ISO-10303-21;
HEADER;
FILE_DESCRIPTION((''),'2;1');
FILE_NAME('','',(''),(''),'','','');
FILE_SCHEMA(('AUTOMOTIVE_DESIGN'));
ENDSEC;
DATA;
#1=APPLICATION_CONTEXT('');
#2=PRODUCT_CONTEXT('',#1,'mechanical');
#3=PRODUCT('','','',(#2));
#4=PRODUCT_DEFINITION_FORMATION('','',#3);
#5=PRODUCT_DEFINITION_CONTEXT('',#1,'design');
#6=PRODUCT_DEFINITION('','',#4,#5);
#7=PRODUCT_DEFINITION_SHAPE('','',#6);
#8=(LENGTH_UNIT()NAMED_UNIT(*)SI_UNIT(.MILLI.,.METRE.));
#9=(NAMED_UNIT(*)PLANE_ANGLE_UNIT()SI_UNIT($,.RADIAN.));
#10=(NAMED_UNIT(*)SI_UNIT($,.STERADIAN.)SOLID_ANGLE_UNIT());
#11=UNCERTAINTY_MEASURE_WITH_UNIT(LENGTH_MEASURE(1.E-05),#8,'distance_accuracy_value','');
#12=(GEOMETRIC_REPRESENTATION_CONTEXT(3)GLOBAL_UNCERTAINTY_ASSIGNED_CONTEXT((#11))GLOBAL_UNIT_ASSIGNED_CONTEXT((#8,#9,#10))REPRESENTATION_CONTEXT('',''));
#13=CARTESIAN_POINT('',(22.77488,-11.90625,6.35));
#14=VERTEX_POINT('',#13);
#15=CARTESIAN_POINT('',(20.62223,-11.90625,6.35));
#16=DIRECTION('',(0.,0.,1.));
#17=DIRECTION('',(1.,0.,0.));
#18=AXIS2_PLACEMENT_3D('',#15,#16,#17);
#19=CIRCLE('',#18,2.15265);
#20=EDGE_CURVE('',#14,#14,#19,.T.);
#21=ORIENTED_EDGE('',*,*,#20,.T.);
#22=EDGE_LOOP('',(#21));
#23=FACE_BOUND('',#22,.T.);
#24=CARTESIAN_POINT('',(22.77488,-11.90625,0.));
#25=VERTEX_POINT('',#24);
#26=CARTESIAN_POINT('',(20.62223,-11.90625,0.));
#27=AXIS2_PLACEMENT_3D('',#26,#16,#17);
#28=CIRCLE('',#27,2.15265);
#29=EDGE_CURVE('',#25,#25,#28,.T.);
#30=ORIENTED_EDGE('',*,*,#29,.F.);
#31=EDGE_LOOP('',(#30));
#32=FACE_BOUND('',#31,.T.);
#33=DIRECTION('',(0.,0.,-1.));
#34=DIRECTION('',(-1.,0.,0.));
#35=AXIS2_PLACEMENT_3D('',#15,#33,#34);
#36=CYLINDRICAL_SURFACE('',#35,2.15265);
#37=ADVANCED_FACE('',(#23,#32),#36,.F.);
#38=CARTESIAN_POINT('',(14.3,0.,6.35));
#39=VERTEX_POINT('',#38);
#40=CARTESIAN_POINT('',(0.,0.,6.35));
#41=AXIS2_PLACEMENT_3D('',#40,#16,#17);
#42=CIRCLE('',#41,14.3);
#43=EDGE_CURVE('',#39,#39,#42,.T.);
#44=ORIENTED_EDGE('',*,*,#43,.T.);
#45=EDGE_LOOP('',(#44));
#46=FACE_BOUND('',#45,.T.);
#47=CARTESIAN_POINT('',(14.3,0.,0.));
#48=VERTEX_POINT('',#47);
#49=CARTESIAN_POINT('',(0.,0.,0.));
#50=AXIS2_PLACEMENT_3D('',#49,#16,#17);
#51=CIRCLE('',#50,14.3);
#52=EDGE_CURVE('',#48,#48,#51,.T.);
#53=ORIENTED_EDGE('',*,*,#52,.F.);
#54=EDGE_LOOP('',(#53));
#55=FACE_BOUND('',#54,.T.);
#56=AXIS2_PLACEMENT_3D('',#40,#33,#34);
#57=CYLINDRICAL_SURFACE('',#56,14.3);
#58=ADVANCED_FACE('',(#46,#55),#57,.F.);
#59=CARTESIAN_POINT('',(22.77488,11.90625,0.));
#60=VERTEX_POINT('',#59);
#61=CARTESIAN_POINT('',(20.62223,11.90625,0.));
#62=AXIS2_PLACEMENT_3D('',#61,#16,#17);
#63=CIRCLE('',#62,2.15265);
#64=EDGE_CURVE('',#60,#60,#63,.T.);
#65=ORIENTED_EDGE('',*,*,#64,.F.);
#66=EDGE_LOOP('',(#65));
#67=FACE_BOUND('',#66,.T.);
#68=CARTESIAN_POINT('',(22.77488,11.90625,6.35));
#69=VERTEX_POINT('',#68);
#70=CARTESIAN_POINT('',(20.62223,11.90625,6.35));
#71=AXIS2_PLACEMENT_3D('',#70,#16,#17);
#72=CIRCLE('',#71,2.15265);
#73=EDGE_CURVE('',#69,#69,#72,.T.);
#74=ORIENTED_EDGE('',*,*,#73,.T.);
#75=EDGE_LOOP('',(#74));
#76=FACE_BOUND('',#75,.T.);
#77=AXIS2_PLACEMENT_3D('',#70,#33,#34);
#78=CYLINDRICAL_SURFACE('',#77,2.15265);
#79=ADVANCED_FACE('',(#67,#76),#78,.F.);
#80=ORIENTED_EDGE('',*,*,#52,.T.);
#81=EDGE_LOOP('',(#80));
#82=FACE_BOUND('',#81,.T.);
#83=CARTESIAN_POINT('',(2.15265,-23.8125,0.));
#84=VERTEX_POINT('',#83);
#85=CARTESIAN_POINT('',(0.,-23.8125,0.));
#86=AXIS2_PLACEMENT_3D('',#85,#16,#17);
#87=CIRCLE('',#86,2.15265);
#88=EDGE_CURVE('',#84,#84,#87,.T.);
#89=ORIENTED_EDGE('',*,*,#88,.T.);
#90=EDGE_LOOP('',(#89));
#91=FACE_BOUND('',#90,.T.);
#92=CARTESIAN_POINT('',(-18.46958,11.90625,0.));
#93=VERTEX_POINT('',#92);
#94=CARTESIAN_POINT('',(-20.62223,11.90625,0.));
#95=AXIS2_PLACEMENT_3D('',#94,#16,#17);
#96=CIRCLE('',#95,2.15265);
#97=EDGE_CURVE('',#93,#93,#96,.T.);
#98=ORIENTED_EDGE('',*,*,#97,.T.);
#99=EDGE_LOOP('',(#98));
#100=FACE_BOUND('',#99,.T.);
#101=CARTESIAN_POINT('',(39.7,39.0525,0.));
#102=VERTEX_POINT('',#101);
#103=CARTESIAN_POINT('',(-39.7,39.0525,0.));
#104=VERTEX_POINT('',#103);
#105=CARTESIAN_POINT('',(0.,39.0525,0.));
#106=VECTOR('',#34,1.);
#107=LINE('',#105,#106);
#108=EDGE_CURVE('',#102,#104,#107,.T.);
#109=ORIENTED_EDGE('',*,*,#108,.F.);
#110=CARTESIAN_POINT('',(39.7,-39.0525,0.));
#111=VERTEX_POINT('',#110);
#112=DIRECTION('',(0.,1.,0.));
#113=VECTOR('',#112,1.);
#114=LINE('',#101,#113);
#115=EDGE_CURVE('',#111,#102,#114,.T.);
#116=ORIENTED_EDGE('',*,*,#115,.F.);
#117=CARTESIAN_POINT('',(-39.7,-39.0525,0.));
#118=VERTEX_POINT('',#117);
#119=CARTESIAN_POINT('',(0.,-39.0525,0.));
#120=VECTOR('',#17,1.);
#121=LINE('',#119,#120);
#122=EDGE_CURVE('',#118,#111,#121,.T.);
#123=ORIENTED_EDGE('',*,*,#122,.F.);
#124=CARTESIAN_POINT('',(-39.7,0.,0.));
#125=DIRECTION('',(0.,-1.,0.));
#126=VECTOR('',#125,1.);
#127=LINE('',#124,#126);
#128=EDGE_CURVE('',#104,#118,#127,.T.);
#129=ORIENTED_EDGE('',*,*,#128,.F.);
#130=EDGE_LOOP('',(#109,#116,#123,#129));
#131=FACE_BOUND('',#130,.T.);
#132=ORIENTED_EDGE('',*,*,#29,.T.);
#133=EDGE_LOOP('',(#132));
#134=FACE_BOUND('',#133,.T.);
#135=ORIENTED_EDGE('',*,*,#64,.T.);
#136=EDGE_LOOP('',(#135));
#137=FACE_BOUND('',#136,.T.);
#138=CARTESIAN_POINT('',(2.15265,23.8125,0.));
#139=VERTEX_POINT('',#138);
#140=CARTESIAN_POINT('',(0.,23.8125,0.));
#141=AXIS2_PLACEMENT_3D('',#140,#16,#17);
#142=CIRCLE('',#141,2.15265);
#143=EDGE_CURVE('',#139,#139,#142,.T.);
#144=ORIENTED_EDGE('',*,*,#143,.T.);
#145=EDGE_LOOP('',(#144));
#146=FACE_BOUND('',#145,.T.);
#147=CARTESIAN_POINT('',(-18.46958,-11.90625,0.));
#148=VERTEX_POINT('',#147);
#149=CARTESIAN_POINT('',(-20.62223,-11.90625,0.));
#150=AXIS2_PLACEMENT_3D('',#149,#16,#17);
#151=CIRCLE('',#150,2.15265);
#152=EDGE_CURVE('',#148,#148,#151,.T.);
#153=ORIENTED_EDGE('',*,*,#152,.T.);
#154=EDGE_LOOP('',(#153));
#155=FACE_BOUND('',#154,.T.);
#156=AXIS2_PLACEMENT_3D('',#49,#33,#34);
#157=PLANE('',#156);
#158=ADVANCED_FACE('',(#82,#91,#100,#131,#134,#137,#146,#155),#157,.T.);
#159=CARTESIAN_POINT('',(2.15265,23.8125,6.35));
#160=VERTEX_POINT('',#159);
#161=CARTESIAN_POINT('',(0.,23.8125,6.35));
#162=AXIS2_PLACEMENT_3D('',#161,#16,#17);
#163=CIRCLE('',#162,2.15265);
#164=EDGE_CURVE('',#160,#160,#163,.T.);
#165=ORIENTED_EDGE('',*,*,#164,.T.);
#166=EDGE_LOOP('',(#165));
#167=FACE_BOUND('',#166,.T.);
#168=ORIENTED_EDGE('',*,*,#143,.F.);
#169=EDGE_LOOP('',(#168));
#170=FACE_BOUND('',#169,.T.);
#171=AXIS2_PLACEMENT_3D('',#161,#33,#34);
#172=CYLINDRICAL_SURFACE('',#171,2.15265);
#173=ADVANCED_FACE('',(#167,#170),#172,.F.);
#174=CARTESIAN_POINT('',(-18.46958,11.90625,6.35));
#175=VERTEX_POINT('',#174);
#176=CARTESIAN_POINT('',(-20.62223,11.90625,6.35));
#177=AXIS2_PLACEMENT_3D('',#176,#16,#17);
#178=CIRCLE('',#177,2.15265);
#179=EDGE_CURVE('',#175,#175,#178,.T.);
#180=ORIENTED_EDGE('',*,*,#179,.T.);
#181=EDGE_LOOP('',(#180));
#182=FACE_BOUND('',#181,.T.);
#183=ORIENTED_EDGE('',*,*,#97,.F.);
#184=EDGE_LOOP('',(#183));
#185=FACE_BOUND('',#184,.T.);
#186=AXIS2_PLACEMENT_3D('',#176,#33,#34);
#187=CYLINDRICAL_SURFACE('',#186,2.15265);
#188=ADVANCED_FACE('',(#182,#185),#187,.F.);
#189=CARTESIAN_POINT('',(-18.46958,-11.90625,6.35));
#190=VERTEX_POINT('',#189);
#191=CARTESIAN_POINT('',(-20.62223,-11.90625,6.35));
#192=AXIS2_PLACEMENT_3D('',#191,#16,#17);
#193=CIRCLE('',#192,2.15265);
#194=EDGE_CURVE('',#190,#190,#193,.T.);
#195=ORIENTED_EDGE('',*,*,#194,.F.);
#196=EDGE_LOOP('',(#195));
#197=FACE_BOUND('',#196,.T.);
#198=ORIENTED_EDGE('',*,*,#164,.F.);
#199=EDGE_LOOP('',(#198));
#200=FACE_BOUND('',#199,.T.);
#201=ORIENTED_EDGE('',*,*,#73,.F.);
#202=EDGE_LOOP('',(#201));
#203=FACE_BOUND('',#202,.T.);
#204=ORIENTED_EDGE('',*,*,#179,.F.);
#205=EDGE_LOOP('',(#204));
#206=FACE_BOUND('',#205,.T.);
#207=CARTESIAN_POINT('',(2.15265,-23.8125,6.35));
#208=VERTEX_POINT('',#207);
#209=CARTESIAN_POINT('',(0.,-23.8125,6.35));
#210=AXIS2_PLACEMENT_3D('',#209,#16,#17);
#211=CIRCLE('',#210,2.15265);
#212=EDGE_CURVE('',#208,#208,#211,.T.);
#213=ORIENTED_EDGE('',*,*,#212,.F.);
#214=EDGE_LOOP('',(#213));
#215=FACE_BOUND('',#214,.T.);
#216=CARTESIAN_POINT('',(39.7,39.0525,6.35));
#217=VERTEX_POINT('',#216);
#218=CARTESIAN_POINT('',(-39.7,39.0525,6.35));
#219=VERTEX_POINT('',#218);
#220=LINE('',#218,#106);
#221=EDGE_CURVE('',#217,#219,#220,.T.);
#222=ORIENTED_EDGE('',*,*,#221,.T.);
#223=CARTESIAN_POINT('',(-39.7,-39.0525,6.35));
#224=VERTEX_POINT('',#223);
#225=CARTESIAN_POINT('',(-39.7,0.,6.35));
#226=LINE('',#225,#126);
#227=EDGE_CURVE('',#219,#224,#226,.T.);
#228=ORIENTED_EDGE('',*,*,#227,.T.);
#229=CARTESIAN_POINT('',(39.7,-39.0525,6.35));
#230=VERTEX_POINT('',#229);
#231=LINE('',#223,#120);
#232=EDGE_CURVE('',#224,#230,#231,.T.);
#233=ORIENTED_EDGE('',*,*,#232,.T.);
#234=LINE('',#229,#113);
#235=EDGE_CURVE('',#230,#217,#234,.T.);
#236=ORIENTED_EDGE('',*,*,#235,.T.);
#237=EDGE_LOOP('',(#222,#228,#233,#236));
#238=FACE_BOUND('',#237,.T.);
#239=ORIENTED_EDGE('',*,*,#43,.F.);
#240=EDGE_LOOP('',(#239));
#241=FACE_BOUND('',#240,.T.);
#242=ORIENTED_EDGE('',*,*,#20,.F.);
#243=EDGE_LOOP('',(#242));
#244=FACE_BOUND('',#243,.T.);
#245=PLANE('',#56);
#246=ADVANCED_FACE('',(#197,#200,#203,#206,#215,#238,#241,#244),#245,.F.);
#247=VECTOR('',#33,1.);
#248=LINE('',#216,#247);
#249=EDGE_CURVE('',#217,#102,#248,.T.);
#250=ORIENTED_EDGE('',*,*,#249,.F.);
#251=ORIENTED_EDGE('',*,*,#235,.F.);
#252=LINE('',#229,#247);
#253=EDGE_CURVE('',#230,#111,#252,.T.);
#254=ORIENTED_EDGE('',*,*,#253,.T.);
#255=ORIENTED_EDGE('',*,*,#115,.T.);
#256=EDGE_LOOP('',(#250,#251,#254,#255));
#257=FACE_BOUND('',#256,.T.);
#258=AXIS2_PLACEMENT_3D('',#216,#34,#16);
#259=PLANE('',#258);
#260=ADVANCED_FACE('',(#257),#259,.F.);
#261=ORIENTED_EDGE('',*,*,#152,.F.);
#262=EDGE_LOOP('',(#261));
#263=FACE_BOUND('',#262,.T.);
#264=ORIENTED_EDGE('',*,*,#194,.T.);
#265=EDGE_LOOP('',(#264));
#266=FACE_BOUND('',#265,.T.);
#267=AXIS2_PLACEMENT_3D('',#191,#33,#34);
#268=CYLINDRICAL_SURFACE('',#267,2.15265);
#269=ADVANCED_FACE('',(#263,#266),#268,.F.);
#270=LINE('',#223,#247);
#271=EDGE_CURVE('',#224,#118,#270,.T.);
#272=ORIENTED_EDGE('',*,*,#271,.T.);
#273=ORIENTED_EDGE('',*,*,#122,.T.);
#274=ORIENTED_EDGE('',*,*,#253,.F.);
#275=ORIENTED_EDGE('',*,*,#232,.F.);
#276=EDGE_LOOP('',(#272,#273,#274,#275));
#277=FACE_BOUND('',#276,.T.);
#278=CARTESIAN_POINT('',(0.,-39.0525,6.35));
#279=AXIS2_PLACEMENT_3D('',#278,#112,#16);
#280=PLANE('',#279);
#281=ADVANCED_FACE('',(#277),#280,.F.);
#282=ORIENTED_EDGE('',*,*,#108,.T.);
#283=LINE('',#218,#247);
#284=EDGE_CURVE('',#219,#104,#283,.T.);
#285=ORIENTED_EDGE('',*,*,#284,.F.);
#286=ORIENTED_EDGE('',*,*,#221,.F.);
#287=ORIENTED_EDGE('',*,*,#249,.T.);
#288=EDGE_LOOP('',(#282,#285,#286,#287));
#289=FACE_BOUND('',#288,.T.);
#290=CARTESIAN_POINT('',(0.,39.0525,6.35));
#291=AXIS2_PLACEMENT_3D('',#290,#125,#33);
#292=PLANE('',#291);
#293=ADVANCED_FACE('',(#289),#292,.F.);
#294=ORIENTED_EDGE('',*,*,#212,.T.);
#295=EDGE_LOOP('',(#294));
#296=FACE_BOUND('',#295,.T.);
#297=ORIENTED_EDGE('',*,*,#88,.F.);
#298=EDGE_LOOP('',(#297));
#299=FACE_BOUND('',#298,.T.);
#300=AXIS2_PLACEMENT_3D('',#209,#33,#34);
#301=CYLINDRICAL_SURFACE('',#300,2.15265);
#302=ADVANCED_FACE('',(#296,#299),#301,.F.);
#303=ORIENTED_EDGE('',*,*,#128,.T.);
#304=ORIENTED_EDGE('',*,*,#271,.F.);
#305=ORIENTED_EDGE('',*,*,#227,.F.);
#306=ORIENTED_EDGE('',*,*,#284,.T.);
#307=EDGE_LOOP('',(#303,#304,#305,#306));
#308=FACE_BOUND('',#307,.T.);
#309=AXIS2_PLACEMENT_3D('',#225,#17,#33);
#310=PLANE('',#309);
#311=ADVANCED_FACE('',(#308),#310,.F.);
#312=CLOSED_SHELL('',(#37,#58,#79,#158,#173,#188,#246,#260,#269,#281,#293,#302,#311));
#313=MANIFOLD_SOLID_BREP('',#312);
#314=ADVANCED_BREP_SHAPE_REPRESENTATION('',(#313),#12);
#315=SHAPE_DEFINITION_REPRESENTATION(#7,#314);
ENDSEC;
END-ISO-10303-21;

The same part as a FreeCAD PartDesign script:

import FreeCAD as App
import Part
import Sketcher
from FreeCAD import Vector

doc = App.newDocument("Part")
params = doc.addObject("Spreadsheet::Sheet", "Params")
for row, (alias, value) in enumerate([
    ("sketch1_diameter", "28.6 mm"),
    ("sketch1_width", "79.4 mm"),
    ("pad1_length", "6.35 mm"),
], start=1):
    params.set(f"A{row}", alias)
    params.set(f"B{row}", "=" + value)
    params.setAlias(f"B{row}", alias)

body = doc.addObject("PartDesign::Body", "Body")

# Sketch on XY plane
sketch1 = body.newObject("Sketcher::SketchObject", "Sketch")
sketch1.AttachmentSupport = (doc.getObject("XY_Plane"), [""])
sketch1.MapMode = "FlatFace"
sketch1.addGeometry([
    Part.LineSegment(Vector(39.7, 39.1, 0), Vector(-39.7, 39.1, 0)),  # 0
    Part.LineSegment(Vector(-39.7, 39.1, 0), Vector(-39.7, -39.1, 0)),  # 1
    Part.LineSegment(Vector(-39.7, -39.1, 0), Vector(39.7, -39.1, 0)),  # 2
    Part.LineSegment(Vector(39.7, -39.1, 0), Vector(39.7, 39.1, 0)),  # 3
    Part.Circle(Vector(20.6, -11.9, 0), Vector(0, 0, 1), 2.2),  # 4
    Part.Circle(Vector(0, -23.8, 0), Vector(0, 0, 1), 2.2),  # 5
    Part.Circle(Vector(0, 0, 0), Vector(0, 0, 1), 14.3),  # 6
    Part.Circle(Vector(-20.6, -11.9, 0), Vector(0, 0, 1), 2.2),  # 7
    Part.Circle(Vector(20.6, 11.9, 0), Vector(0, 0, 1), 2.2),  # 8
    Part.Circle(Vector(-20.6, 11.9, 0), Vector(0, 0, 1), 2.2),  # 9
    Part.Circle(Vector(0, 23.8, 0), Vector(0, 0, 1), 2.2),  # 10
], False)
sketch1.addConstraint([
    Sketcher.Constraint("Coincident", 0, 2, 1, 1),
    Sketcher.Constraint("Coincident", 1, 2, 2, 1),
    Sketcher.Constraint("Coincident", 2, 2, 3, 1),
    Sketcher.Constraint("Coincident", 3, 2, 0, 1),
    Sketcher.Constraint("Horizontal", 0),
    Sketcher.Constraint("Vertical", 1),
    Sketcher.Constraint("Horizontal", 2),
    Sketcher.Constraint("Vertical", 3),
    Sketcher.Constraint("Coincident", 6, 3, -1, 1),
    Sketcher.Constraint("Equal", 4, 5),
    Sketcher.Constraint("Equal", 5, 7),
    Sketcher.Constraint("Equal", 7, 8),
    Sketcher.Constraint("Equal", 8, 9),
    Sketcher.Constraint("Equal", 9, 10),
    Sketcher.Constraint("Symmetric", 7, 3, 8, 3, -1, 1),
    Sketcher.Constraint("Symmetric", 4, 3, 9, 3, -1, 1),
    Sketcher.Constraint("Symmetric", 5, 3, 10, 3, -1, 1),
    Sketcher.Constraint("Symmetric", 0, 2, 2, 2, -1, 1),
    Sketcher.Constraint("Symmetric", 4, 3, 7, 3, -2),
    Sketcher.Constraint("PointOnObject", 5, 3, -2),
    Sketcher.Constraint("Diameter", 6, 28.6),
    Sketcher.Constraint("DistanceX", 0, 2, 0, 1, 79.4),
    Sketcher.Constraint("Diameter", 4, 4.3053),
    Sketcher.Constraint("DistanceY", 1, 2, 1, 1, 78.105),
    Sketcher.Constraint("DistanceY", 10, 3, 0, 2, 15.24),
    Sketcher.Constraint("DistanceY", 4, 3, 8, 3, 23.8125),
    Sketcher.Constraint("DistanceX", -1, 1, 4, 3, 20.62223),
])
sketch1.setExpression("Constraints[20]", "Params.sketch1_diameter")
sketch1.setExpression("Constraints[21]", "Params.sketch1_width")
pad1 = body.newObject("PartDesign::Pad", "Pad")
pad1.Profile = sketch1
pad1.setExpression("Length", "Params.pad1_length")

doc.recompute()
